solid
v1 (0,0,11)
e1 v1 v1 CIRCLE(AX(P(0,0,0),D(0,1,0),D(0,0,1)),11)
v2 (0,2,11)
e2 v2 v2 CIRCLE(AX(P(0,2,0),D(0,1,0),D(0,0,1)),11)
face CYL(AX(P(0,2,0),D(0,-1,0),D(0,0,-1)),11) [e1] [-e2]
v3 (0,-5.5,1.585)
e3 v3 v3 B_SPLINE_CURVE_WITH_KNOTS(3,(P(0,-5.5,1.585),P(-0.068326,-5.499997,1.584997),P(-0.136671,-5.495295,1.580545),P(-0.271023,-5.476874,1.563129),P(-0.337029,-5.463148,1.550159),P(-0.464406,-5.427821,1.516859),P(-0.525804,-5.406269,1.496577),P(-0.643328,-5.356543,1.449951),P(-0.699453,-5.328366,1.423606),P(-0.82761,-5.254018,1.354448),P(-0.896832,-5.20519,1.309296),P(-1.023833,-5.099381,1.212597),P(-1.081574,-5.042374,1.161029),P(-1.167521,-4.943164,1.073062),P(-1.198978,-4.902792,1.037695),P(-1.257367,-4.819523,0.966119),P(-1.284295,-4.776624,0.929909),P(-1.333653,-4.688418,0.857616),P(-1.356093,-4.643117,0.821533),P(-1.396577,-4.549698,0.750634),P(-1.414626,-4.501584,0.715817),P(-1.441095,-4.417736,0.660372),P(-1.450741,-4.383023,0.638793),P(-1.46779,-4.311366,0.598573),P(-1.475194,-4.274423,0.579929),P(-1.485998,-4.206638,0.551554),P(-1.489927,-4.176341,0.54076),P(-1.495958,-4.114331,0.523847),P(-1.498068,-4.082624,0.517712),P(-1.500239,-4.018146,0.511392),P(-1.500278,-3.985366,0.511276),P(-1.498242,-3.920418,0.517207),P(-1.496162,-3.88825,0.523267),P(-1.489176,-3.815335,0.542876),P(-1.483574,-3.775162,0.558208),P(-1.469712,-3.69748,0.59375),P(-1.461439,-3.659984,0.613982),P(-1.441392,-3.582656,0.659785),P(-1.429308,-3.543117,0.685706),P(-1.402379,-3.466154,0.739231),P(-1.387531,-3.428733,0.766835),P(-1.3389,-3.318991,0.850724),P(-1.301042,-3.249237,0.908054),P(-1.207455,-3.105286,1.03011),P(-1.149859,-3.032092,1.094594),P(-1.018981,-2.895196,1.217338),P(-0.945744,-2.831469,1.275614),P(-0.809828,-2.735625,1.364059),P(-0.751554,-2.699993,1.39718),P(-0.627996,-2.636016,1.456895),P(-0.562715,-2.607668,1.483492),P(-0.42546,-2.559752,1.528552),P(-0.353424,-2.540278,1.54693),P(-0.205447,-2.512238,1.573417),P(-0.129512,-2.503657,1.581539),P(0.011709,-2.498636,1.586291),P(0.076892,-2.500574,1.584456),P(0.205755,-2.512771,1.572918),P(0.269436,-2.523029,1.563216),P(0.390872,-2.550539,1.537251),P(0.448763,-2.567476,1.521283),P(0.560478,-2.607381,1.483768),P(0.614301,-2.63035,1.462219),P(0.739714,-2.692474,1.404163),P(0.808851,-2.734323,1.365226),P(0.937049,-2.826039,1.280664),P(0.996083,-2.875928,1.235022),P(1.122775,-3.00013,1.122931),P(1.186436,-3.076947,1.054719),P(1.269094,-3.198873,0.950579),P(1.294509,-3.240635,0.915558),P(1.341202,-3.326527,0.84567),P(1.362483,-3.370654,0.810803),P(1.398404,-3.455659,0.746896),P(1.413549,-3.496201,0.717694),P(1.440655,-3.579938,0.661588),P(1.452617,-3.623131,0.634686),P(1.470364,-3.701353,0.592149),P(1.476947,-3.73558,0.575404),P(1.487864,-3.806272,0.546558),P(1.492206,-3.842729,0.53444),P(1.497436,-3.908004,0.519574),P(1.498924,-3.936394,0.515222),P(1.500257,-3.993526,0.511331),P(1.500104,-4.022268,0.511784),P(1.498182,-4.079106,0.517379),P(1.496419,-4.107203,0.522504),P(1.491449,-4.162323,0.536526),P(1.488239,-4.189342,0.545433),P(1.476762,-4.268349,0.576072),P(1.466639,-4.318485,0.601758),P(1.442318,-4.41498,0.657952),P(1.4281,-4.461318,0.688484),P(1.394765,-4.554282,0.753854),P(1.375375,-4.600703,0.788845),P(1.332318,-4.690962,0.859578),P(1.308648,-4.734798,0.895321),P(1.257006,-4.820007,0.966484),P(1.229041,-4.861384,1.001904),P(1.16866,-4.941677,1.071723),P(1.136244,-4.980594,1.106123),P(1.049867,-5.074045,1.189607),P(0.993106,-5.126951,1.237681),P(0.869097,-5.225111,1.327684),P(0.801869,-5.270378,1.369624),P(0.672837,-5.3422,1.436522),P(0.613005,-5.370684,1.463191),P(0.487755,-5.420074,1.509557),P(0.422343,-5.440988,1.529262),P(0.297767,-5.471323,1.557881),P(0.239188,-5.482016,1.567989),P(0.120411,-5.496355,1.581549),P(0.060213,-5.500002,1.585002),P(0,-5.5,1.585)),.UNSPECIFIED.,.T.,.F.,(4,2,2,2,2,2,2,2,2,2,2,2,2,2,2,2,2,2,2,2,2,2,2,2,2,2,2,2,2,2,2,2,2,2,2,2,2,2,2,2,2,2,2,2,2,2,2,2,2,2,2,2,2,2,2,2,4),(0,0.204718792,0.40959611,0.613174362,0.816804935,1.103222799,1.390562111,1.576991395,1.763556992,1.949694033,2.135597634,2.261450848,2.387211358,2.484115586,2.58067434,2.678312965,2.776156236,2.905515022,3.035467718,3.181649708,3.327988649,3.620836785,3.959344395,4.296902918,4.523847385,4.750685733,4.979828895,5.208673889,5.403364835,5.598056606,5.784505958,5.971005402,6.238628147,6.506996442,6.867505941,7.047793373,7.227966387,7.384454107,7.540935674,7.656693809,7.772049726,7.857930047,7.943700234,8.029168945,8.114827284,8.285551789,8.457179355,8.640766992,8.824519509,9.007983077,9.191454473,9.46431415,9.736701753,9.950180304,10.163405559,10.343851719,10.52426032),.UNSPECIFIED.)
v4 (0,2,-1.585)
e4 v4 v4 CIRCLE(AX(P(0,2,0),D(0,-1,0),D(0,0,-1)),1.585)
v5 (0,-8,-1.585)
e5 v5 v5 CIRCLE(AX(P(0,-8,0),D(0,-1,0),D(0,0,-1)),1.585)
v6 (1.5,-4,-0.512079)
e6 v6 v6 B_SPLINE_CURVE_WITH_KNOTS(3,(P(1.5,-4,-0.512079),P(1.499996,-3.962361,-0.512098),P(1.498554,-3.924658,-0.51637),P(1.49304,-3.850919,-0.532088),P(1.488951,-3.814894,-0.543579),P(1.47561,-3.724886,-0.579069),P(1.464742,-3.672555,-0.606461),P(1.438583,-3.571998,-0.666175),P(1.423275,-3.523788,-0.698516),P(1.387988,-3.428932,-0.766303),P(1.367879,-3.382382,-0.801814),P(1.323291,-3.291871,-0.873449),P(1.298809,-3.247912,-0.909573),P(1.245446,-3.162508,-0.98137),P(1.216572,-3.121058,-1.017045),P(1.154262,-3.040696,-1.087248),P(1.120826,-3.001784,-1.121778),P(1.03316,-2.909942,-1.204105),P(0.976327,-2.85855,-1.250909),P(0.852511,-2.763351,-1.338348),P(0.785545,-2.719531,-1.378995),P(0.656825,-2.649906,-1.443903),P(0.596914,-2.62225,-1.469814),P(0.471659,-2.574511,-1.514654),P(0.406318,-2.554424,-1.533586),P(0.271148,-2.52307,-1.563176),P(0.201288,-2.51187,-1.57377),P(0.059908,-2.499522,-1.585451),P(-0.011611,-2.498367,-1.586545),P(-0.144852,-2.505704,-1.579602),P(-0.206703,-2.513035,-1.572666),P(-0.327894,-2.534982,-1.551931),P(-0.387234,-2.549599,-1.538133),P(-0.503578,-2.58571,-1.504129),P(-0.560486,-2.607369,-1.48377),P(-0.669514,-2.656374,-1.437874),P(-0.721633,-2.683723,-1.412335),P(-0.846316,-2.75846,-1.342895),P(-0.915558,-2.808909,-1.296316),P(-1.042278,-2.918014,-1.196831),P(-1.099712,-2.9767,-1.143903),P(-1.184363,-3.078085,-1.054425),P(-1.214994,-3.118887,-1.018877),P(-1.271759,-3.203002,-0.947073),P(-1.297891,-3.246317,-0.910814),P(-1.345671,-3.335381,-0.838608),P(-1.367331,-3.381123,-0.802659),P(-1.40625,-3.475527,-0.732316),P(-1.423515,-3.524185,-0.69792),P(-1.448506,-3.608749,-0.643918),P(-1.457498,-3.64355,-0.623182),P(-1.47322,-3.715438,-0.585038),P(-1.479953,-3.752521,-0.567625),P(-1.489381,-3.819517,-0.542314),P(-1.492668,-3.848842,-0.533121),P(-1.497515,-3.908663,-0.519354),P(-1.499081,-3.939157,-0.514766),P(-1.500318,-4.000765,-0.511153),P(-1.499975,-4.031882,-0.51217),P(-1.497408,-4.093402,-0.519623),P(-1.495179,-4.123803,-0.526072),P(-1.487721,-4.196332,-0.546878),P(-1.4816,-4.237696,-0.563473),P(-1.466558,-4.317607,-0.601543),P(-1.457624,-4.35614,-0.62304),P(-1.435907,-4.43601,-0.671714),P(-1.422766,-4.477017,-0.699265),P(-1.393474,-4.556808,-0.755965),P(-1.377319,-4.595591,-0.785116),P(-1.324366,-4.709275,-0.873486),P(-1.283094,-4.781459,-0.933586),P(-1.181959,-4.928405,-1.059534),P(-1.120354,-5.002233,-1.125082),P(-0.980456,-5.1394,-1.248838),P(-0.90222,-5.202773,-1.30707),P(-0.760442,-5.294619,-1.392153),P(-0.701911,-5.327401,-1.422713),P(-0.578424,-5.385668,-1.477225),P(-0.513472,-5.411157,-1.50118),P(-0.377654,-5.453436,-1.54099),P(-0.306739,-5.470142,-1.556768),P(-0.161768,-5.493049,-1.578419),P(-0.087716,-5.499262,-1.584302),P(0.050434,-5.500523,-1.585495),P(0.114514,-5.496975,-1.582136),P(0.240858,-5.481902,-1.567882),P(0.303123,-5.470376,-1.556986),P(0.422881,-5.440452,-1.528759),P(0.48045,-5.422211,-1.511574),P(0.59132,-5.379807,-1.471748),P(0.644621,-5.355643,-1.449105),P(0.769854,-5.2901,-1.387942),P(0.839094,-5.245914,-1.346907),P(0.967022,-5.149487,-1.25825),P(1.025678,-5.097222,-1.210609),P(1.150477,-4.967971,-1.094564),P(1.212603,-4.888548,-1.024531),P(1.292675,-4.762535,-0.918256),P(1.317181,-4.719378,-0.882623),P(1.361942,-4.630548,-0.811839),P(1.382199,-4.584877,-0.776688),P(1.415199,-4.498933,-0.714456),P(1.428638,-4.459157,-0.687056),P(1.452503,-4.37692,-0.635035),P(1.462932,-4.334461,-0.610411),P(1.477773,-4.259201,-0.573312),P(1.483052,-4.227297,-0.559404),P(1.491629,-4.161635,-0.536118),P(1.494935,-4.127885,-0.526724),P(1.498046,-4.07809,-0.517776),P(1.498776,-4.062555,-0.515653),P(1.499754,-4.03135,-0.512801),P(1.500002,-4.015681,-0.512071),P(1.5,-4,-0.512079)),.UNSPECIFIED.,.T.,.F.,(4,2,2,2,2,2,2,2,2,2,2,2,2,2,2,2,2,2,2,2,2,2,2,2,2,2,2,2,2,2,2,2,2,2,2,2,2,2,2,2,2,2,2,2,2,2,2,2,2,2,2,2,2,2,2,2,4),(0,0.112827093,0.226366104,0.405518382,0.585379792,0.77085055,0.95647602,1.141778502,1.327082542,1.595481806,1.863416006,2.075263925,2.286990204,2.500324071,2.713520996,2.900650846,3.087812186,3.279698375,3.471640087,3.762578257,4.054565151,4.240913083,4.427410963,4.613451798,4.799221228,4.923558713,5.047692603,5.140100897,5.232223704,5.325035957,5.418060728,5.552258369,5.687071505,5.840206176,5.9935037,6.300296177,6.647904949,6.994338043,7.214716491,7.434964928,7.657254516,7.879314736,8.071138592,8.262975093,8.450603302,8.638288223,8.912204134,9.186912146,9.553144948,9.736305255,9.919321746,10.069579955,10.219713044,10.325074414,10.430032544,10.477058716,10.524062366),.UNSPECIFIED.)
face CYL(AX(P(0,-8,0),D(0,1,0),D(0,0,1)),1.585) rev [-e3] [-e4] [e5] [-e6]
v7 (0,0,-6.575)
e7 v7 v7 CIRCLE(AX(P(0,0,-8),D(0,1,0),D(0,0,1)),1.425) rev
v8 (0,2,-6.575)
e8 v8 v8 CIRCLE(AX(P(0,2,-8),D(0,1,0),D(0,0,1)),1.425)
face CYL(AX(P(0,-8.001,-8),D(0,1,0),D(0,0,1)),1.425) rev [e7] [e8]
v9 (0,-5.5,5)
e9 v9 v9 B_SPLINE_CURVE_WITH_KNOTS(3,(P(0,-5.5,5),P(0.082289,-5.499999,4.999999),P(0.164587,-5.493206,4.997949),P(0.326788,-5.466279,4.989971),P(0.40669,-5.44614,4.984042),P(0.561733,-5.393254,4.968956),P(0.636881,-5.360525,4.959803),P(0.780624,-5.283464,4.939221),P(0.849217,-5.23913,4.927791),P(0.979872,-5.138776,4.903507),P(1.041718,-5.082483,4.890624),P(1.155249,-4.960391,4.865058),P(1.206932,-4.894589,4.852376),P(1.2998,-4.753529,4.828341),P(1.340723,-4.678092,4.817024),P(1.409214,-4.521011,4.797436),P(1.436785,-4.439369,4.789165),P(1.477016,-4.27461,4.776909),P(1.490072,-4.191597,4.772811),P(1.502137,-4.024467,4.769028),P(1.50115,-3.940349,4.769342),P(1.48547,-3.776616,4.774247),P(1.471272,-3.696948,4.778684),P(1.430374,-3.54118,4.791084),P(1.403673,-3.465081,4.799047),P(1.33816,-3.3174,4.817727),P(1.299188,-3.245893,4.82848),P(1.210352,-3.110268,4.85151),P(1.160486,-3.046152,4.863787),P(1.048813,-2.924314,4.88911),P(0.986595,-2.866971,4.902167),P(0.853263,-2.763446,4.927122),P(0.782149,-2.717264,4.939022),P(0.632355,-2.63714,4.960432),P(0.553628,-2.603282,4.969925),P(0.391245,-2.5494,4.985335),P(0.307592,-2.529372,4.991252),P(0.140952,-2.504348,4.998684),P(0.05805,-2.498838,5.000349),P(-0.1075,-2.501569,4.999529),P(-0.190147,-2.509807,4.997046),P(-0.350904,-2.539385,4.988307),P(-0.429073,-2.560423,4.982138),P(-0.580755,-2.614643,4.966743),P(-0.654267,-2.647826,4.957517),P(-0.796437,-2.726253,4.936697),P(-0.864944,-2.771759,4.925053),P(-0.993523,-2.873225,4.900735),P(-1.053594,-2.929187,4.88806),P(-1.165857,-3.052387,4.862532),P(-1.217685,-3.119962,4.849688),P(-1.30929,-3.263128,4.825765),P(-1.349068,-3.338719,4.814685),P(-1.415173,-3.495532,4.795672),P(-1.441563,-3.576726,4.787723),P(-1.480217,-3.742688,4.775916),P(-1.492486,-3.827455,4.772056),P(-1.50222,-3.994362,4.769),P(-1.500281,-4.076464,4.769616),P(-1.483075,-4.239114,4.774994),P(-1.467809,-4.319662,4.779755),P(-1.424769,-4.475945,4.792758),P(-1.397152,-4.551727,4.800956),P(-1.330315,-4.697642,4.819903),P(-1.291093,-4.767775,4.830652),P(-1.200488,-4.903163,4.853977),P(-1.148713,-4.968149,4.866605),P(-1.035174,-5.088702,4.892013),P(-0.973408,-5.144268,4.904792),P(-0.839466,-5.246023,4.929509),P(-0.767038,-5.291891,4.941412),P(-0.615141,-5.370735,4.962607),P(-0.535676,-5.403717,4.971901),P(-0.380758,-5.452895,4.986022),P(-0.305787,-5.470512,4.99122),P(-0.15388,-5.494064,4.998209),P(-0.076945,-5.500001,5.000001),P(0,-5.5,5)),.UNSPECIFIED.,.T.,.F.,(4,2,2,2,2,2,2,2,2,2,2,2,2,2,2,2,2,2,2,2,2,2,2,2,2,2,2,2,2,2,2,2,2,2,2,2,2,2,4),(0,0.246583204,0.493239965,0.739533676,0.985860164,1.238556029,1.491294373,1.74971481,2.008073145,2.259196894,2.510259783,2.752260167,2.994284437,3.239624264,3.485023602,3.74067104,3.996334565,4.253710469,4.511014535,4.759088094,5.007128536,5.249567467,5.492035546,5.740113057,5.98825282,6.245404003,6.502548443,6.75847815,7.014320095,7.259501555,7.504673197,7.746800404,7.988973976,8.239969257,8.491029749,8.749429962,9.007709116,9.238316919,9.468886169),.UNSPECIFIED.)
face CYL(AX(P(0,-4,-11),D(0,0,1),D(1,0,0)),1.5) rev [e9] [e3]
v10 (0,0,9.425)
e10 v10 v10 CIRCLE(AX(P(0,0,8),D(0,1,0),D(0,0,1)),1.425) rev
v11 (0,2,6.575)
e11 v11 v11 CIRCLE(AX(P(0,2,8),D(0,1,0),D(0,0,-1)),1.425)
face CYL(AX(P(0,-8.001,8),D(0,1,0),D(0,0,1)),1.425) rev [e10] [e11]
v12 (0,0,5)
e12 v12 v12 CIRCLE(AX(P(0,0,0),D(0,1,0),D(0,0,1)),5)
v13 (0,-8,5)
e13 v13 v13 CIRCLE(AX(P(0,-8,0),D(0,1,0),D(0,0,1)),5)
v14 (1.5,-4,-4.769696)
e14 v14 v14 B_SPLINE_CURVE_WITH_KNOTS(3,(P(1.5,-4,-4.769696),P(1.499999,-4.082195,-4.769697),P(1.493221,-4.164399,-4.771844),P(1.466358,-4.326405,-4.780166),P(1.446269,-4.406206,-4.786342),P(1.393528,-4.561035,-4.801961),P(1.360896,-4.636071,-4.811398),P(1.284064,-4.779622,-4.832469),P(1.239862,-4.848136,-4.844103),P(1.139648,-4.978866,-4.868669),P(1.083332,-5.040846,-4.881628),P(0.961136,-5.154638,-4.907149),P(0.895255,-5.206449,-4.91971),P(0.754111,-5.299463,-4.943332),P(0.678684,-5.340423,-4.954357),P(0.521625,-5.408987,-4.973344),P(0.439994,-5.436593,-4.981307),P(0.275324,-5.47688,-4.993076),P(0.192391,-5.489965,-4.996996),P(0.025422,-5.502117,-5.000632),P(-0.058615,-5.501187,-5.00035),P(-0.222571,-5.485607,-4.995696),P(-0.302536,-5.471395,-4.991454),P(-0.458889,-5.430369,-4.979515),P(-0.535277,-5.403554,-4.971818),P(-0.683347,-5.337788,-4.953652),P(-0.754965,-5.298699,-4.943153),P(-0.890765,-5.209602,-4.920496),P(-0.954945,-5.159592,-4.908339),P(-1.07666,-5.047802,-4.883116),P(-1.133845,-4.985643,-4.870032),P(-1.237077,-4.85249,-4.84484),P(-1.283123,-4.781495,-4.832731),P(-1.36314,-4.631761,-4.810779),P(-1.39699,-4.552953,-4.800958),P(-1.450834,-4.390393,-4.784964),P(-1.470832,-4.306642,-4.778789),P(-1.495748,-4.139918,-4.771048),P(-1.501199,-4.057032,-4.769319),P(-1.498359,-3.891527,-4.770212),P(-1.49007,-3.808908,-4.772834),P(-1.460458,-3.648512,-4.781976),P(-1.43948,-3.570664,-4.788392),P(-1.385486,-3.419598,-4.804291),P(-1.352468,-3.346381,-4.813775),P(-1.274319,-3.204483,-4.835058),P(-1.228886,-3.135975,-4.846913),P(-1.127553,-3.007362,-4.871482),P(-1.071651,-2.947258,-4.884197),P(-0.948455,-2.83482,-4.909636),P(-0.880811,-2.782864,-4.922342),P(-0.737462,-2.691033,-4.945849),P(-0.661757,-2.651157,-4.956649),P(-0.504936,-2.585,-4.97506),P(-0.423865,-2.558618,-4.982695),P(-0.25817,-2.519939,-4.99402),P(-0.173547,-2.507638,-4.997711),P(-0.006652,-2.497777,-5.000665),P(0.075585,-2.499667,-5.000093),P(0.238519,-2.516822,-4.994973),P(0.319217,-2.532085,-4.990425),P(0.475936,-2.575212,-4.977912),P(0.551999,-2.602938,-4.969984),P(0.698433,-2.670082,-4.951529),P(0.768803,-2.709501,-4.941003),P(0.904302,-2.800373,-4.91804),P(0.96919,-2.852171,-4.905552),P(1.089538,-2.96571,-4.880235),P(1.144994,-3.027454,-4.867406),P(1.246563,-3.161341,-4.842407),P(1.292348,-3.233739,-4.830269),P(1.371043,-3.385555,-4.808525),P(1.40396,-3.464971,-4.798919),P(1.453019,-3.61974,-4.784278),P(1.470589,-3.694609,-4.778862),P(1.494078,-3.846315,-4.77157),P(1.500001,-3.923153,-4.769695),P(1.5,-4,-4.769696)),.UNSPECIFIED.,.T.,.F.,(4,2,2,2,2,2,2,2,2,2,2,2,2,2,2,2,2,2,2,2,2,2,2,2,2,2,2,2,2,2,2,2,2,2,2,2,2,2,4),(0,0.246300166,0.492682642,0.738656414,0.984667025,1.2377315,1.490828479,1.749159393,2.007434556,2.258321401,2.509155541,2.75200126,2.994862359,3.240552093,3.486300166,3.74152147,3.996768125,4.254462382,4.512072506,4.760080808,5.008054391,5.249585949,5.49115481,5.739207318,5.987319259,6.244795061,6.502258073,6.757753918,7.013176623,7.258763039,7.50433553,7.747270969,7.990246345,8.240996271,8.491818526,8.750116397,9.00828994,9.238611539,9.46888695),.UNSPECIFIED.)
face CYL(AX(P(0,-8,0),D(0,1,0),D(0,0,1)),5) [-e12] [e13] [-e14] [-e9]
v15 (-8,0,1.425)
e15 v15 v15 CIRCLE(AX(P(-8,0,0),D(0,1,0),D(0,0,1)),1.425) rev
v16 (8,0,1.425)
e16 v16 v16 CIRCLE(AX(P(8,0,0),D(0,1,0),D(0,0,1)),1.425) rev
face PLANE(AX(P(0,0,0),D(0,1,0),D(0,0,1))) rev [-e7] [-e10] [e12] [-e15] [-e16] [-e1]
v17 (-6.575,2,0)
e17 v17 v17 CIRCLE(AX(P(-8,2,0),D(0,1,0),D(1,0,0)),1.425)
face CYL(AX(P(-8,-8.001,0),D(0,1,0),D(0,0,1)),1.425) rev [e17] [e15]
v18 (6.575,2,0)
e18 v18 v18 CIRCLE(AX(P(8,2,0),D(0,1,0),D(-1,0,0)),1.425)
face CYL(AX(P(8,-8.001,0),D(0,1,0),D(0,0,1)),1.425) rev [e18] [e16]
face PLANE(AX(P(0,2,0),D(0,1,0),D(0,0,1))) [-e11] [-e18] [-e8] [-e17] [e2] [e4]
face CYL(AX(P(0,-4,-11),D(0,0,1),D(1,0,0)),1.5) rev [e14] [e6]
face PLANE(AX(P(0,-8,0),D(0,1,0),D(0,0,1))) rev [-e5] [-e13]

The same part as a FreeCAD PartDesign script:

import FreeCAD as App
import Part
import Sketcher
from FreeCAD import Vector
Q = App.Units.Quantity

doc = App.newDocument("Part")
params = doc.addObject("Spreadsheet::Sheet", "Params")
for row, (alias, value) in enumerate([
    ("sketch1_diameter", "22 mm"),
    ("pad1_length", "2 mm"),
    ("sketch2_diameter", "10 mm"),
    ("pad2_length", "8 mm"),
    ("sketch3_diameter", "3.17 mm"),
    ("sketch4_diameter", "2.85 mm"),
    ("pocket2_length", "2 mm"),
    ("sketch5_diameter", "3 mm"),
], start=1):
    params.set(f"A{row}", alias)
    params.set(f"B{row}", "=" + value)
    params.setAlias(f"B{row}", alias)

body = doc.addObject("PartDesign::Body", "Body")

sketch1 = body.newObject("Sketcher::SketchObject", "Sketch")
sketch1.AttachmentSupport = (doc.getObject("XZ_Plane"), [""])
sketch1.MapMode = "FlatFace"
sketch1.addGeometry(Part.Circle(Vector(0, 0, 0), Vector(0, 0, 1), 11), False)
sketch1.addConstraint(Sketcher.Constraint("Coincident", 0, 3, -1, 1))
sketch1.addConstraint(Sketcher.Constraint("Diameter", 0, Q("22 mm")))
sketch1.setExpression("Constraints[1]", "Params.sketch1_diameter")
pad1 = body.newObject("PartDesign::Pad", "Pad")
pad1.Profile = sketch1
pad1.setExpression("Length", "Params.pad1_length")
pad1.Reversed = True

sketch2 = body.newObject("Sketcher::SketchObject", "Sketch001")
sketch2.AttachmentSupport = (doc.getObject("XZ_Plane"), [""])
sketch2.MapMode = "FlatFace"
sketch2.addGeometry(Part.Circle(Vector(0, 0, 0), Vector(0, 0, 1), 5), False)
sketch2.addConstraint(Sketcher.Constraint("Coincident", 0, 3, -1, 1))
sketch2.addConstraint(Sketcher.Constraint("Diameter", 0, Q("10 mm")))
sketch2.setExpression("Constraints[1]", "Params.sketch2_diameter")
pad2 = body.newObject("PartDesign::Pad", "Pad001")
pad2.Profile = sketch2
pad2.setExpression("Length", "Params.pad2_length")

sketch3 = body.newObject("Sketcher::SketchObject", "Sketch002")
sketch3.AttachmentSupport = (doc.getObject("XZ_Plane"), [""])
sketch3.MapMode = "FlatFace"
sketch3.AttachmentOffset = App.Placement(Vector(0, 0, -2), App.Rotation())
sketch3.addGeometry(Part.Circle(Vector(0, 0, 0), Vector(0, 0, 1), 1.585), False)
sketch3.addConstraint(Sketcher.Constraint("Coincident", 0, 3, -1, 1))
sketch3.addConstraint(Sketcher.Constraint("Diameter", 0, Q("3.17 mm")))
sketch3.setExpression("Constraints[1]", "Params.sketch3_diameter")
pocket1 = body.newObject("PartDesign::Pocket", "Pocket")
pocket1.Profile = sketch3
pocket1.Type = "ThroughAll"
pocket1.Reversed = True

sketch4 = body.newObject("Sketcher::SketchObject", "Sketch003")
sketch4.AttachmentSupport = (doc.getObject("XZ_Plane"), [""])
sketch4.MapMode = "FlatFace"
sketch4.AttachmentOffset = App.Placement(Vector(0, 0, -2), App.Rotation())
sketch4.addGeometry(Part.Circle(Vector(0, -8, 0), Vector(0, 0, 1), 1.425), False)
sketch4.addConstraint(Sketcher.Constraint("PointOnObject", 0, 3, -2))
sketch4.addConstraint(Sketcher.Constraint("Diameter", 0, Q("2.85 mm")))
sketch4.addConstraint(Sketcher.Constraint("DistanceY", 0, 3, -1, 1, Q("8 mm")))
sketch4.setExpression("Constraints[1]", "Params.sketch4_diameter")
pocket2 = body.newObject("PartDesign::Pocket", "Pocket001")
pocket2.Profile = sketch4
pocket2.setExpression("Length", "Params.pocket2_length")
pocket2.Reversed = True
doc.recompute()

polarpattern = body.newObject("PartDesign::PolarPattern", "PolarPattern")
polarpattern.Originals = [pocket2]
polarpattern.Axis = (doc.getObject("Y_Axis"), [""])
polarpattern.Angle = 360
polarpattern.Occurrences = 4
body.Tip = polarpattern

sketch5 = body.newObject("Sketcher::SketchObject", "Sketch004")
sketch5.AttachmentSupport = (doc.getObject("XY_Plane"), [""])
sketch5.MapMode = "FlatFace"
sketch5.addGeometry(Part.Circle(Vector(0, -4, 0), Vector(0, 0, 1), 1.5), False)
sketch5.addConstraint(Sketcher.Constraint("PointOnObject", 0, 3, -2))
sketch5.addConstraint(Sketcher.Constraint("Diameter", 0, Q("3 mm")))
sketch5.addConstraint(Sketcher.Constraint("DistanceY", 0, 3, -1, 1, Q("4 mm")))
sketch5.setExpression("Constraints[1]", "Params.sketch5_diameter")
pocket3 = body.newObject("PartDesign::Pocket", "Pocket002")
pocket3.Profile = sketch5
pocket3.Type = "ThroughAll"
pocket3.Midplane = True

doc.recompute()
